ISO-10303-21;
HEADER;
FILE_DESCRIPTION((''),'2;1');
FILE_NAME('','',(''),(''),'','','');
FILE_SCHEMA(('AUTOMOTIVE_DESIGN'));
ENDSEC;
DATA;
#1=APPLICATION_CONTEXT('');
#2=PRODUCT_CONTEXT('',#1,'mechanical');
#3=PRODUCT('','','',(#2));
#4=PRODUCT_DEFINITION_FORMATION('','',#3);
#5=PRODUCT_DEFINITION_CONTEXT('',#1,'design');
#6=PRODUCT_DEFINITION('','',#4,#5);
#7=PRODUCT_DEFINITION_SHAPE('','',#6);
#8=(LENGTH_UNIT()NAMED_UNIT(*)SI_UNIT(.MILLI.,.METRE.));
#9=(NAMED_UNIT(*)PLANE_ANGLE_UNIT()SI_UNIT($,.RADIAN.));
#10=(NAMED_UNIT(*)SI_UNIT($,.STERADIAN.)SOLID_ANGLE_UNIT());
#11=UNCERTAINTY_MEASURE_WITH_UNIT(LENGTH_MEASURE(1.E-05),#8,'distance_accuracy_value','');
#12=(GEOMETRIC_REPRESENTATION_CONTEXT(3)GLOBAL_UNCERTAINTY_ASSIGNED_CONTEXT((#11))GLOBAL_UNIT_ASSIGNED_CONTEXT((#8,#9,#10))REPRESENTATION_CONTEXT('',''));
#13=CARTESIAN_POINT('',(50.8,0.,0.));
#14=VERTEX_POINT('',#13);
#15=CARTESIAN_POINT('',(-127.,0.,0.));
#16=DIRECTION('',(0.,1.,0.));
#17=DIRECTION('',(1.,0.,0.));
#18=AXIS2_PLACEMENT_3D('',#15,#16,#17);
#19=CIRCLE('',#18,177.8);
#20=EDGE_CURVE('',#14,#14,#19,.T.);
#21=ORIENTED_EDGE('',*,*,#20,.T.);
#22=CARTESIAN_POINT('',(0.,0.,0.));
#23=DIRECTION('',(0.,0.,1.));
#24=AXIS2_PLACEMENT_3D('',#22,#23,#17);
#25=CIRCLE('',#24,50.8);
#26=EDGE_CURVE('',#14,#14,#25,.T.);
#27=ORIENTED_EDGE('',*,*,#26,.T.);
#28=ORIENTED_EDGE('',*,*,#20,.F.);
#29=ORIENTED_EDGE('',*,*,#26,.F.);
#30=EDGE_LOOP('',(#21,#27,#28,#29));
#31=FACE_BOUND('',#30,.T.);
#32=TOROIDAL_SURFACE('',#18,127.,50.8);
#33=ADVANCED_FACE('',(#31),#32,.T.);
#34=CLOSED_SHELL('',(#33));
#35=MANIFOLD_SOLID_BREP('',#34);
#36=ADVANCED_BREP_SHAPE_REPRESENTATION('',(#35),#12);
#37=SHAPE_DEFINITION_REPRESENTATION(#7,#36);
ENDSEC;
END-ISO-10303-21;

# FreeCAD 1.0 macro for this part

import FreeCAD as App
import Part
import Sketcher

V = App.Vector
Q = App.Units.Quantity

doc = App.newDocument("Part")
body = doc.addObject("PartDesign::Body", "Body")

sketch1 = body.newObject("Sketcher::SketchObject", "Sketch")
sketch1.AttachmentSupport = (doc.getObject("XY_Plane"), [""])
sketch1.MapMode = "FlatFace"
sketch1.addGeometry(Part.Circle(V(0, 0, 0), V(0, 0, 1), 50.8), False)
sketch1.addGeometry(Part.LineSegment(V(-127, 0, 0), V(-127, 10, 0)), True)
sketch1.addConstraint(Sketcher.Constraint("Vertical", 1))
sketch1.addConstraint(Sketcher.Constraint("Coincident", 0, 3, -1, 1))
sketch1.addConstraint(Sketcher.Constraint("PointOnObject", 1, 1, -1))
sketch1.addConstraint(Sketcher.Constraint("Diameter", 0, Q("4 in")))
sketch1.addConstraint(Sketcher.Constraint("DistanceX", 1, 1, -1, 1, Q("5 in")))
sketch1.addConstraint(Sketcher.Constraint("DistanceY", 1, 1, 1, 2, 10.0))
revolution = body.newObject("PartDesign::Revolution", "Revolution")
revolution.Profile = sketch1
revolution.ReferenceAxis = (sketch1, ["Axis0"])
revolution.Angle = 360

doc.recompute()
